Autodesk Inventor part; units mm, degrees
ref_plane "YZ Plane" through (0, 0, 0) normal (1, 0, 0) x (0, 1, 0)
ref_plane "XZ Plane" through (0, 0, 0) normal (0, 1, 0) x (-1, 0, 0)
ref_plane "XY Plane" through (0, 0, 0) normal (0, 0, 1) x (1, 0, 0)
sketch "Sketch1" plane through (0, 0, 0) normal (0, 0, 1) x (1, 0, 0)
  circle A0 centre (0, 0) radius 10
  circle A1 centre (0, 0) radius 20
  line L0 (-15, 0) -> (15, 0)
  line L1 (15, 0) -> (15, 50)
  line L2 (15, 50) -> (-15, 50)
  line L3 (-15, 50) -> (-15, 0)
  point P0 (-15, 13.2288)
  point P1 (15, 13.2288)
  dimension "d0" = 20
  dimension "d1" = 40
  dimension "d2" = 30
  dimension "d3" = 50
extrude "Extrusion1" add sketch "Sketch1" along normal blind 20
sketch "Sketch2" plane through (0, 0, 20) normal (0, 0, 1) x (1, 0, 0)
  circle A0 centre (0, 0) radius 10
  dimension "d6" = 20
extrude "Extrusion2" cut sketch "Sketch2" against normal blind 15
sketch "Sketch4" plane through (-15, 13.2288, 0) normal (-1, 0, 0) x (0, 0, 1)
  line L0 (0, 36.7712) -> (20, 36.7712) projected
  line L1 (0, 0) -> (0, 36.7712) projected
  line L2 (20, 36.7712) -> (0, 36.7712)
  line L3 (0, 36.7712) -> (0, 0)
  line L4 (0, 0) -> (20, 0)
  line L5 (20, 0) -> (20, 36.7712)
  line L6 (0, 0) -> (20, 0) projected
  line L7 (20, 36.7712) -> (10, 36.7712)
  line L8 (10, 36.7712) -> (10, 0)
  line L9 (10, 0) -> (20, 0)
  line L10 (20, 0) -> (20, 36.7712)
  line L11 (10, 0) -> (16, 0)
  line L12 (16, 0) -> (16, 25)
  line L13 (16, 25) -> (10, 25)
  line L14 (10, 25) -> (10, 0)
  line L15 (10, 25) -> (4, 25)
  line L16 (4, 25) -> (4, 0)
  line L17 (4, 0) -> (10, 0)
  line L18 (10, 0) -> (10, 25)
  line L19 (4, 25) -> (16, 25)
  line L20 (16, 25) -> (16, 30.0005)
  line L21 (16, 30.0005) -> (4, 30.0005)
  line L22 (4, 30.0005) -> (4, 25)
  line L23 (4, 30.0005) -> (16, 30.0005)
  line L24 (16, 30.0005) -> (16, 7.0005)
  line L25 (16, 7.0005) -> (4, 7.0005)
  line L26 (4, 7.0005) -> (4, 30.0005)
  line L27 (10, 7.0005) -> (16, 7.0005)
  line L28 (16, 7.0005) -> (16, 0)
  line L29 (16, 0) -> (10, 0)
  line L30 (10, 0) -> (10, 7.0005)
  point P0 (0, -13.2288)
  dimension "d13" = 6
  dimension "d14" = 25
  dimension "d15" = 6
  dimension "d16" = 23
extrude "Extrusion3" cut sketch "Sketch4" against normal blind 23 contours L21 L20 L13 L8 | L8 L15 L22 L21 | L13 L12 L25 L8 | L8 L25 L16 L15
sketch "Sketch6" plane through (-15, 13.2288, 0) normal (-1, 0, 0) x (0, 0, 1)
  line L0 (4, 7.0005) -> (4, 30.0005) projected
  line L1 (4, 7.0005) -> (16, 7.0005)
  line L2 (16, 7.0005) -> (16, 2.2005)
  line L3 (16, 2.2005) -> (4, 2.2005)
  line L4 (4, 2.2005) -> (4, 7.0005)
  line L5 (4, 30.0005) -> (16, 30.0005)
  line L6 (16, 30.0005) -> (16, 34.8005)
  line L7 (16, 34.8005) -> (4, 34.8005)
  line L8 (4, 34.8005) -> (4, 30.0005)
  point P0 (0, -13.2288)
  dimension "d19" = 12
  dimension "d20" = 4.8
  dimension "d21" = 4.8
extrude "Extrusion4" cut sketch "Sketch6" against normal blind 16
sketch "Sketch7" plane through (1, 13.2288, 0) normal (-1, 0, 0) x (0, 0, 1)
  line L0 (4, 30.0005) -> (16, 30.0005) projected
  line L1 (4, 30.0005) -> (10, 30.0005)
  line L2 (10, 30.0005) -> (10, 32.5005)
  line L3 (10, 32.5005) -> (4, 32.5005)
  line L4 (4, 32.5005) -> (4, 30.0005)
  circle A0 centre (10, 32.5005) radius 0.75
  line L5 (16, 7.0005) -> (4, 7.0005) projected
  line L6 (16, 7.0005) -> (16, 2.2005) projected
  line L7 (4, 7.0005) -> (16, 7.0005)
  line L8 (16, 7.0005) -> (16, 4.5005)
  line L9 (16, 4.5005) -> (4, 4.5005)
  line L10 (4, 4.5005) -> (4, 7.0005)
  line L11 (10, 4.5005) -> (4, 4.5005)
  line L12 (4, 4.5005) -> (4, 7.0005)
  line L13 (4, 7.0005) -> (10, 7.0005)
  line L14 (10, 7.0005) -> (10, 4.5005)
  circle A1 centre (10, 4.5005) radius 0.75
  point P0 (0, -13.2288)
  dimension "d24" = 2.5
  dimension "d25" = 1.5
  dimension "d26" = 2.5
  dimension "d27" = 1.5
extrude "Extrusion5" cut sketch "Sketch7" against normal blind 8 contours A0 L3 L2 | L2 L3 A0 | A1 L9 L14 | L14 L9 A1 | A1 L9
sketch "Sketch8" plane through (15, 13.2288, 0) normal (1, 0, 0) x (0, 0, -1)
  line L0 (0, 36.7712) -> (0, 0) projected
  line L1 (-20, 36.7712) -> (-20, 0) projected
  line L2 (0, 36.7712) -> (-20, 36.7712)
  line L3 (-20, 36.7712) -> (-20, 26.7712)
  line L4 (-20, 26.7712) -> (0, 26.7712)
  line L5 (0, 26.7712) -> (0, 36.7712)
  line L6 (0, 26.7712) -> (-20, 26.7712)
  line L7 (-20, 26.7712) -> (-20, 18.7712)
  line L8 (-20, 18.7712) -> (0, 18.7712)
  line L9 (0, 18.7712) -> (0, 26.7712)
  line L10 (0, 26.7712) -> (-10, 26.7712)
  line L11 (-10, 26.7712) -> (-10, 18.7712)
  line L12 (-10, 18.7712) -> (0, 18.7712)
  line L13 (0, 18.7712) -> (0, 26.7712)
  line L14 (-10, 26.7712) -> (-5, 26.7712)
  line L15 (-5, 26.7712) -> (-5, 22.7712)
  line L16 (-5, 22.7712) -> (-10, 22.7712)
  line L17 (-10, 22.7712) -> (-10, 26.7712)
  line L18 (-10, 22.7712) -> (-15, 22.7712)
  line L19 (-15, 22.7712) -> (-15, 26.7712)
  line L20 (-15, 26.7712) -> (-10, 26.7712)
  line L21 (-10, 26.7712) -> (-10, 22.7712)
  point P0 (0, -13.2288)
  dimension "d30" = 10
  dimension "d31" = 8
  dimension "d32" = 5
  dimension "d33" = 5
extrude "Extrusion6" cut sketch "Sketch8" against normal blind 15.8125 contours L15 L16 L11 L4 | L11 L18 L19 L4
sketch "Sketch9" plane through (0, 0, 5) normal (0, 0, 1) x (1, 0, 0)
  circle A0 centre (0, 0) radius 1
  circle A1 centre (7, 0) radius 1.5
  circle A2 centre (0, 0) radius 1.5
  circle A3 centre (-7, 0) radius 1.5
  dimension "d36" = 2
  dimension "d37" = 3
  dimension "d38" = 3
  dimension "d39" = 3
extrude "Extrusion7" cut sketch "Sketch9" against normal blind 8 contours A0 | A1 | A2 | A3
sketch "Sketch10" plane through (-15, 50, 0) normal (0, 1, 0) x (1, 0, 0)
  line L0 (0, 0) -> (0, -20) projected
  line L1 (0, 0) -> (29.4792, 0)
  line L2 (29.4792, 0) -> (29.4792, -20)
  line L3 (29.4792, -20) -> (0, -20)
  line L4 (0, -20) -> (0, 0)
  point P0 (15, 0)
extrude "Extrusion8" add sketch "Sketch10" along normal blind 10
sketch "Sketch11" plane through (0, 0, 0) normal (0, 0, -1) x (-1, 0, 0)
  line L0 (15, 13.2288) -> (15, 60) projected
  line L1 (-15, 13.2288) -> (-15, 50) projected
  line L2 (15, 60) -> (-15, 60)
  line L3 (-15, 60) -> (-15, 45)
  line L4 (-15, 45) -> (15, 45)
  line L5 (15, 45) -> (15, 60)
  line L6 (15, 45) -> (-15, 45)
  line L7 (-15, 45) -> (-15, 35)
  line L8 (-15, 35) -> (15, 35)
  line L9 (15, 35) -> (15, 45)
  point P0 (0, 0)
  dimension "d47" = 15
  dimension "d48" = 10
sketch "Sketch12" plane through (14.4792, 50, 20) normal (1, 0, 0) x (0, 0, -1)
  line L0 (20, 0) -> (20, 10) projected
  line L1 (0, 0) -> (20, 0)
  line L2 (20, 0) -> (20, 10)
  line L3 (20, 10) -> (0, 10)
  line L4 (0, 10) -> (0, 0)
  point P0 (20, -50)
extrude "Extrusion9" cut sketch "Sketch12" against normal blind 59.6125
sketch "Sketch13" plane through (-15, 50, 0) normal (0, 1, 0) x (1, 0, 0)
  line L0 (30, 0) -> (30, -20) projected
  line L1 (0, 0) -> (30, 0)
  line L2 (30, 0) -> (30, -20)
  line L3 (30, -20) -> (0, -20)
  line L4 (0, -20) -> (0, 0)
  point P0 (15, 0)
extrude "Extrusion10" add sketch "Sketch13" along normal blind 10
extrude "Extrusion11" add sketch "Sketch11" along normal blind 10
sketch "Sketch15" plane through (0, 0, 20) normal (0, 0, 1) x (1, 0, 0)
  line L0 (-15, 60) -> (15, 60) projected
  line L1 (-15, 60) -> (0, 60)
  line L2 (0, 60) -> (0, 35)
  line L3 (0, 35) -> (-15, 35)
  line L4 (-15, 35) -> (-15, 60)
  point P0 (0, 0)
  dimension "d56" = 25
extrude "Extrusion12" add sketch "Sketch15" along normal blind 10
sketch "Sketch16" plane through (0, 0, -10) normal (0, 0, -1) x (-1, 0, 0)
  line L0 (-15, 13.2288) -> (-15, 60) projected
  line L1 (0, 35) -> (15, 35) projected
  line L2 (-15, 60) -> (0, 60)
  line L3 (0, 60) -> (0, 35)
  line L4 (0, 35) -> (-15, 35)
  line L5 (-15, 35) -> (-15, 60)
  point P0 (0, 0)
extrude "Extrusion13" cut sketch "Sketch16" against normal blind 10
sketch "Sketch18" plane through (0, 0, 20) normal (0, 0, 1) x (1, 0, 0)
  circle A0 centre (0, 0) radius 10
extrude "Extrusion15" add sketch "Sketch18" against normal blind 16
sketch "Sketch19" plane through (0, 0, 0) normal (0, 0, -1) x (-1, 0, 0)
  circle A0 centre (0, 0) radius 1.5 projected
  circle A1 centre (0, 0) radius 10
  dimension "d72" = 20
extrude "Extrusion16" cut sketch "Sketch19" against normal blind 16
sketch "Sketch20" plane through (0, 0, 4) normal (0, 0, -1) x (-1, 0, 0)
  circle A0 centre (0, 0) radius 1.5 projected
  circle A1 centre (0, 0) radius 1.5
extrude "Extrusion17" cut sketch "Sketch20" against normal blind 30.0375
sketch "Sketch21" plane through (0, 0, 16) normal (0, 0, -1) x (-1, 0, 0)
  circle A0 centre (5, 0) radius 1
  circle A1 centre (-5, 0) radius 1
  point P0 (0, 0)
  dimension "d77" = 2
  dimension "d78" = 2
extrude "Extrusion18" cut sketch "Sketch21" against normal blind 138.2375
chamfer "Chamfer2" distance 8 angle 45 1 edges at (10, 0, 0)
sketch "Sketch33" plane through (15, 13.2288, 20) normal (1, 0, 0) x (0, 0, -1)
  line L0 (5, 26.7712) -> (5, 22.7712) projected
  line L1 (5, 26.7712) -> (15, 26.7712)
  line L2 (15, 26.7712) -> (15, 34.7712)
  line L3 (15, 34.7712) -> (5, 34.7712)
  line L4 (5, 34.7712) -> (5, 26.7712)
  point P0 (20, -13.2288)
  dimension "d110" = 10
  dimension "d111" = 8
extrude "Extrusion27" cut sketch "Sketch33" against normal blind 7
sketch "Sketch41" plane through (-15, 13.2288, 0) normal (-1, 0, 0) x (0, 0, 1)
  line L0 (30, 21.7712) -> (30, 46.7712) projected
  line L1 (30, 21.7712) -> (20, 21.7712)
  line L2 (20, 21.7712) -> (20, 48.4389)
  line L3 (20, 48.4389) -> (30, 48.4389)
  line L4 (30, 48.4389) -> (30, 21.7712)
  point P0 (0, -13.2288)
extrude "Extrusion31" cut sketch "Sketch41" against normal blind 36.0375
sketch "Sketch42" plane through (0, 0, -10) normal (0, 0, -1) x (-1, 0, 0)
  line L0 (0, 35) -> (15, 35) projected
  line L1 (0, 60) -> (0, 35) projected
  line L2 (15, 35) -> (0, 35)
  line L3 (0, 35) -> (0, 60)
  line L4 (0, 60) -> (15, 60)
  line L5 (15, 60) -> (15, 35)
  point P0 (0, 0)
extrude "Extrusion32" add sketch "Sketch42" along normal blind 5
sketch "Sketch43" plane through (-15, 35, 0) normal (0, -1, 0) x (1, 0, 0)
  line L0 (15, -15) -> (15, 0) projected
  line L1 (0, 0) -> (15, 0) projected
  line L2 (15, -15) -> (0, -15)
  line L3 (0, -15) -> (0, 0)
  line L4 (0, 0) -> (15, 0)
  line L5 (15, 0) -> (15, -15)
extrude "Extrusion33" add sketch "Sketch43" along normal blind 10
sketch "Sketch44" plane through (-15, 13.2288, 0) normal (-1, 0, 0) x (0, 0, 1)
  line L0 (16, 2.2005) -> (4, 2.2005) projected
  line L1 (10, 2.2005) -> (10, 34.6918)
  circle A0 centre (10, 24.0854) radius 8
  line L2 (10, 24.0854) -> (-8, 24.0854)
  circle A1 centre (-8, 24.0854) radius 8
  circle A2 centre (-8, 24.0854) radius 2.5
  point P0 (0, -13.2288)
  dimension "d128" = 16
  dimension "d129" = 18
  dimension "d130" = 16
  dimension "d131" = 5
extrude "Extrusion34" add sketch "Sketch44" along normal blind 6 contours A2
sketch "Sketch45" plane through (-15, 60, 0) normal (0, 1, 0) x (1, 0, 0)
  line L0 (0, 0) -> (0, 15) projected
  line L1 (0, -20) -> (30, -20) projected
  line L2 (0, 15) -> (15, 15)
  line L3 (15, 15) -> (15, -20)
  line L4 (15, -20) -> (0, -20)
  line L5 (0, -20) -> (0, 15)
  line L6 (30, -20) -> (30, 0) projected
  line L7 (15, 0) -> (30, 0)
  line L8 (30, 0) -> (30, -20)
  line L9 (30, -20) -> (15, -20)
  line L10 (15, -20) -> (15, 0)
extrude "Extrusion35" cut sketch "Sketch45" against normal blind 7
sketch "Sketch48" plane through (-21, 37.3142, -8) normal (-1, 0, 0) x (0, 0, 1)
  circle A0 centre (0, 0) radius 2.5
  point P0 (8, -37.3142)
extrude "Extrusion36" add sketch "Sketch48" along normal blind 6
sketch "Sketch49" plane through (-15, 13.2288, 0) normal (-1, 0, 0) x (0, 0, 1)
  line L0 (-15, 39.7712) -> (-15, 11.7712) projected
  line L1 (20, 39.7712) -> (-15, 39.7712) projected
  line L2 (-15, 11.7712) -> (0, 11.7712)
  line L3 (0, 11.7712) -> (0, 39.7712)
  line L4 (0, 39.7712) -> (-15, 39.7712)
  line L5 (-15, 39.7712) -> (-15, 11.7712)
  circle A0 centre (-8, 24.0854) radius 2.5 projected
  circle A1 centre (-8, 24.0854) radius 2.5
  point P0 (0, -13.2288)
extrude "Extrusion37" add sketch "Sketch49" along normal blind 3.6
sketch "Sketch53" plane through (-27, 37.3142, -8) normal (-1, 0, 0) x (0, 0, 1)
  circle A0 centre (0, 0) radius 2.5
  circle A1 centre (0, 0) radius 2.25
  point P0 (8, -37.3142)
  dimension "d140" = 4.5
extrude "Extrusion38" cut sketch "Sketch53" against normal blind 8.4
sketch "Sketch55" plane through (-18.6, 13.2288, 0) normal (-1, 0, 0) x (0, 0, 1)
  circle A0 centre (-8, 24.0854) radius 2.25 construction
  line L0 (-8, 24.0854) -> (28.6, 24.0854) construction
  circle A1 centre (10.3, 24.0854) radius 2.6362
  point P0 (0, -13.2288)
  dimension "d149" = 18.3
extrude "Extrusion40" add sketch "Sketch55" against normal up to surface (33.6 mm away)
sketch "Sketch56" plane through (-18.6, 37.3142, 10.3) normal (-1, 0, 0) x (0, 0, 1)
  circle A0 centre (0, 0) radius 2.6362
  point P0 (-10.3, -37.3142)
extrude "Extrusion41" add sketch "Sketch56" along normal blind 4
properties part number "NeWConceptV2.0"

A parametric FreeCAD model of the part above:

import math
import FreeCAD as App
import Part
import Sketcher
from FreeCAD import Vector


def edges_at(feature, points):
    """Names of the edges that pass closest to the given points."""
    edges = feature.Shape.Edges
    near = lambda p: min(range(len(edges)), key=lambda i: edges[i].distToShape(Part.Vertex(*p))[0])
    return sorted({f"Edge{near(p) + 1}" for p in points})


def add_polygon(sketch, points):
    """Adds a closed chain of lines whose ends are joined by coincident constraints."""
    first, n = sketch.GeometryCount, len(points)
    for a, b in zip(points, points[1:] + points[:1]):
        sketch.addGeometry(Part.LineSegment(App.Vector(*a, 0), App.Vector(*b, 0)), False)
    for i in range(n):
        sketch.addConstraint(Sketcher.Constraint("Coincident", first + i, 2, first + (i + 1) % n, 1))

doc = App.newDocument("Part")
params = doc.addObject("Spreadsheet::Sheet", "Params")
for row, (alias, value) in enumerate([
    ("sketch1_radius", "20 mm"),
    ("sketch1_width", "30 mm"),
    ("pad1_length", "20 mm"),
    ("sketch2_diameter", "20 mm"),
    ("pocket1_length", "15 mm"),
    ("sketch3_width", "23 mm"),
    ("sketch3_height", "12 mm"),
    ("pocket2_length", "23 mm"),
    ("sketch4_height", "12 mm"),
    ("sketch4_width", "4.8 mm"),
    ("pocket3_length", "16 mm"),
    ("sketch5_diameter", "1.5 mm"),
    ("pocket4_length", "8 mm"),
    ("sketch6_height", "10 mm"),
    ("sketch6_width", "4 mm"),
    ("pocket5_length", "15.8125 mm"),
    ("sketch7_diameter", "3 mm"),
    ("pocket6_length", "8 mm"),
    ("sketch8_height", "20 mm"),
    ("pad2_length", "10 mm"),
    ("sketch9_width", "10 mm"),
    ("sketch9_height", "20 mm"),
    ("pocket7_length", "59.6125 mm"),
    ("sketch10_width", "30 mm"),
    ("sketch10_height", "20 mm"),
    ("pad3_length", "10 mm"),
    ("sketch11_height", "25 mm"),
    ("pad4_length", "10 mm"),
    ("sketch12_height", "25 mm"),
    ("sketch12_width", "15 mm"),
    ("pad5_length", "10 mm"),
    ("sketch13_width", "15 mm"),
    ("sketch13_height", "25 mm"),
    ("pocket8_length", "10 mm"),
    ("sketch14_diameter", "20 mm"),
    ("pad6_length", "16 mm"),
    ("sketch15_diameter", "20 mm"),
    ("sketch15_diameter2", "3 mm"),
    ("pocket9_length", "16 mm"),
    ("sketch16_diameter", "3 mm"),
    ("pocket10_length", "30.0375 mm"),
    ("sketch17_diameter", "2 mm"),
    ("pocket11_length", "138.2375 mm"),
    ("chamfer_size", "8 mm"),
    ("sketch18_width", "8 mm"),
    ("sketch18_height", "10 mm"),
    ("pocket12_length", "7 mm"),
    ("sketch19_height", "10 mm"),
    ("pocket13_length", "36.0375 mm"),
    ("sketch20_width", "15 mm"),
    ("sketch20_height", "25 mm"),
    ("pad7_length", "5 mm"),
    ("sketch21_width", "15 mm"),
    ("pad8_length", "10 mm"),
    ("sketch22_diameter", "5 mm"),
    ("pad9_length", "6 mm"),
    ("sketch23_width", "30 mm"),
    ("sketch23_height", "35 mm"),
    ("pocket14_length", "7 mm"),
    ("sketch24_diameter", "5 mm"),
    ("pad10_length", "6 mm"),
    ("sketch25_diameter", "5 mm"),
    ("sketch25_width", "28 mm"),
    ("sketch25_height", "15 mm"),
    ("pad11_length", "3.6 mm"),
    ("sketch26_diameter", "4.5 mm"),
    ("sketch26_diameter2", "5 mm"),
    ("pocket15_length", "8.4 mm"),
    ("pad12_length", "33.6 mm"),
    ("pad13_length", "4 mm"),
], start=1):
    params.set(f"A{row}", alias)
    params.set(f"B{row}", "=" + value)
    params.setAlias(f"B{row}", alias)

body = doc.addObject("PartDesign::Body", "Body")

sketch1 = body.newObject("Sketcher::SketchObject", "Sketch")
sketch1.AttachmentSupport = (doc.getObject("XY_Plane"), [""])
sketch1.MapMode = "FlatFace"
sketch1.addGeometry([
    Part.ArcOfCircle(Part.Circle(Vector(0, 0, 0), Vector(0, 0, 1), 20), math.radians(139), math.radians(401)),
    Part.LineSegment(Vector(15, 13, 0), Vector(15, 50, 0)),
    Part.LineSegment(Vector(15, 50, 0), Vector(-15, 50, 0)),
    Part.LineSegment(Vector(-15, 50, 0), Vector(-15, 13, 0)),
], False)
sketch1.addConstraint([
    Sketcher.Constraint("Coincident", 0, 2, 1, 1),
    Sketcher.Constraint("Coincident", 1, 2, 2, 1),
    Sketcher.Constraint("Coincident", 2, 2, 3, 1),
    Sketcher.Constraint("Coincident", 3, 2, 0, 1),
    Sketcher.Constraint("Vertical", 1),
    Sketcher.Constraint("Horizontal", 2),
    Sketcher.Constraint("Vertical", 3),
    Sketcher.Constraint("Coincident", 0, 3, -1, 1),
    Sketcher.Constraint("Horizontal", 0, 2, 3, 2),
    Sketcher.Constraint("Radius", 0, 20.0),
    Sketcher.Constraint("DistanceX", 2, 2, 2, 1, 30.0),
    Sketcher.Constraint("DistanceY", -1, 1, 1, 2, 50.0),
])
sketch1.setExpression("Constraints[9]", "Params.sketch1_radius")
sketch1.setExpression("Constraints[10]", "Params.sketch1_width")
pad1 = body.newObject("PartDesign::Pad", "Pad")
pad1.Profile = sketch1
pad1.setExpression("Length", "Params.pad1_length")

sketch2 = body.newObject("Sketcher::SketchObject", "Sketch001")
sketch2.AttachmentSupport = (doc.getObject("XY_Plane"), [""])
sketch2.MapMode = "FlatFace"
sketch2.AttachmentOffset = App.Placement(Vector(0, 0, 20), App.Rotation())
sketch2.addGeometry(Part.Circle(Vector(0, 0, 0), Vector(0, 0, 1), 10), False)
sketch2.addConstraint([
    Sketcher.Constraint("Coincident", 0, 3, -1, 1),
    Sketcher.Constraint("Diameter", 0, 20.0),
])
sketch2.setExpression("Constraints[1]", "Params.sketch2_diameter")
pocket1 = body.newObject("PartDesign::Pocket", "Pocket")
pocket1.Profile = sketch2
pocket1.setExpression("Length", "Params.pocket1_length")

sketch3 = body.newObject("Sketcher::SketchObject", "Sketch002")
sketch3.AttachmentSupport = (doc.getObject("YZ_Plane"), [""])
sketch3.MapMode = "FlatFace"
sketch3.AttachmentOffset = App.Placement(Vector(0, 0, -15), App.Rotation())
add_polygon(sketch3, [(43, 16), (43, 4), (20, 4), (20, 16)])
sketch3.addConstraint([
    Sketcher.Constraint("Vertical", 0),
    Sketcher.Constraint("Horizontal", 1),
    Sketcher.Constraint("Vertical", 2),
    Sketcher.Constraint("Horizontal", 3),
    Sketcher.Constraint("DistanceX", 1, 2, 1, 1, 23.0),
    Sketcher.Constraint("DistanceY", 0, 2, 0, 1, 12.0),
    Sketcher.Constraint("DistanceY", -1, 1, 0, 2, 4.0),
    Sketcher.Constraint("DistanceX", -1, 1, 0, 2, 43.2293),
])
sketch3.setExpression("Constraints[8]", "Params.sketch3_width")
sketch3.setExpression("Constraints[9]", "Params.sketch3_height")
pocket2 = body.newObject("PartDesign::Pocket", "Pocket001")
pocket2.Profile = sketch3
pocket2.setExpression("Length", "Params.pocket2_length")
pocket2.Reversed = True

sketch4 = body.newObject("Sketcher::SketchObject", "Sketch003")
sketch4.AttachmentSupport = (doc.getObject("YZ_Plane"), [""])
sketch4.MapMode = "FlatFace"
sketch4.AttachmentOffset = App.Placement(Vector(0, 0, -15), App.Rotation())
add_polygon(sketch4, [(48, 4), (43.2, 4), (43.2, 16), (48, 16)])
add_polygon(sketch4, [(20.2, 16), (20.2, 4), (15.4, 4), (15.4, 16)])
sketch4.addConstraint([
    Sketcher.Constraint("Horizontal", 0),
    Sketcher.Constraint("Vertical", 1),
    Sketcher.Constraint("Horizontal", 2),
    Sketcher.Constraint("Vertical", 3),
    Sketcher.Constraint("Vertical", 4),
    Sketcher.Constraint("Horizontal", 5),
    Sketcher.Constraint("Vertical", 6),
    Sketcher.Constraint("Horizontal", 7),
    Sketcher.Constraint("Horizontal", 3, 2, 4, 2),
    Sketcher.Constraint("Horizontal", 2, 2, 6, 2),
    Sketcher.Constraint("Equal", 2, 5),
    Sketcher.Constraint("DistanceY", 1, 1, 1, 2, 12.0),
    Sketcher.Constraint("DistanceX", 0, 2, 0, 1, 4.8),
    Sketcher.Constraint("DistanceY", -1, 1, 0, 2, 4.0),
    Sketcher.Constraint("DistanceX", 4, 2, 0, 2, 23.0),
    Sketcher.Constraint("DistanceX", -1, 1, 0, 2, 43.2293),
])
sketch4.setExpression("Constraints[19]", "Params.sketch4_height")
sketch4.setExpression("Constraints[20]", "Params.sketch4_width")
pocket3 = body.newObject("PartDesign::Pocket", "Pocket002")
pocket3.Profile = sketch4
pocket3.setExpression("Length", "Params.pocket3_length")
pocket3.Reversed = True

sketch5 = body.newObject("Sketcher::SketchObject", "Sketch004")
sketch5.AttachmentSupport = (doc.getObject("YZ_Plane"), [""])
sketch5.MapMode = "FlatFace"
sketch5.AttachmentOffset = App.Placement(Vector(0, 0, 1), App.Rotation())
sketch5.addGeometry([
    Part.Circle(Vector(45.7, 10, 0), Vector(0, 0, 1), 0.8),
    Part.Circle(Vector(17.7, 10, 0), Vector(0, 0, 1), 0.8),
], False)
sketch5.addConstraint([
    Sketcher.Constraint("Equal", 0, 1),
    Sketcher.Constraint("Horizontal", 0, 3, 1, 3),
    Sketcher.Constraint("Diameter", 0, 1.5),
    Sketcher.Constraint("DistanceY", -1, 1, 0, 3, 10.0),
    Sketcher.Constraint("DistanceX", 1, 3, 0, 3, 28.0),
    Sketcher.Constraint("DistanceX", -1, 1, 0, 3, 45.7293),
])
sketch5.setExpression("Constraints[2]", "Params.sketch5_diameter")
pocket4 = body.newObject("PartDesign::Pocket", "Pocket003")
pocket4.Profile = sketch5
pocket4.setExpression("Length", "Params.pocket4_length")
pocket4.Reversed = True

sketch6 = body.newObject("Sketcher::SketchObject", "Sketch005")
sketch6.AttachmentSupport = (doc.getObject("YZ_Plane"), [""])
sketch6.MapMode = "FlatFace"
sketch6.AttachmentOffset = App.Placement(Vector(0, 0, 15), App.Rotation())
add_polygon(sketch6, [(36, 5), (40, 5), (40, 15), (36, 15)])
sketch6.addConstraint([
    Sketcher.Constraint("Horizontal", 0),
    Sketcher.Constraint("Vertical", 1),
    Sketcher.Constraint("Horizontal", 2),
    Sketcher.Constraint("Vertical", 3),
    Sketcher.Constraint("DistanceY", 1, 1, 1, 2, 10.0),
    Sketcher.Constraint("DistanceY", -1, 1, 0, 2, 5.0),
    Sketcher.Constraint("DistanceX", 0, 1, 0, 2, 4.0),
    Sketcher.Constraint("DistanceX", -1, 1, 0, 2, 40.0),
])
sketch6.setExpression("Constraints[8]", "Params.sketch6_height")
sketch6.setExpression("Constraints[10]", "Params.sketch6_width")
pocket5 = body.newObject("PartDesign::Pocket", "Pocket004")
pocket5.Profile = sketch6
pocket5.setExpression("Length", "Params.pocket5_length")

sketch7 = body.newObject("Sketcher::SketchObject", "Sketch006")
sketch7.AttachmentSupport = (doc.getObject("XY_Plane"), [""])
sketch7.MapMode = "FlatFace"
sketch7.AttachmentOffset = App.Placement(Vector(0, 0, 5), App.Rotation())
sketch7.addGeometry([
    Part.Circle(Vector(0, 0, 0), Vector(0, 0, 1), 1.5),
    Part.Circle(Vector(7, 0, 0), Vector(0, 0, 1), 1.5),
    Part.Circle(Vector(-7, 0, 0), Vector(0, 0, 1), 1.5),
], False)
sketch7.addConstraint([
    Sketcher.Constraint("Coincident", 0, 3, -1, 1),
    Sketcher.Constraint("Equal", 0, 1),
    Sketcher.Constraint("Equal", 1, 2),
    Sketcher.Constraint("Symmetric", 1, 3, 2, 3, -1, 1),
    Sketcher.Constraint("PointOnObject", 1, 3, -1),
    Sketcher.Constraint("Diameter", 0, 3.0),
    Sketcher.Constraint("DistanceX", -1, 1, 1, 3, 7.0),
])
sketch7.setExpression("Constraints[5]", "Params.sketch7_diameter")
pocket6 = body.newObject("PartDesign::Pocket", "Pocket005")
pocket6.Profile = sketch7
pocket6.setExpression("Length", "Params.pocket6_length")

sketch8 = body.newObject("Sketcher::SketchObject", "Sketch007")
sketch8.AttachmentSupport = (doc.getObject("XZ_Plane"), [""])
sketch8.MapMode = "FlatFace"
sketch8.AttachmentOffset = App.Placement(Vector(0, 0, -50), App.Rotation())
add_polygon(sketch8, [(14, 0), (-15, 0), (-15, 20), (14, 20)])
sketch8.addConstraint([
    Sketcher.Constraint("Horizontal", 0),
    Sketcher.Constraint("Vertical", 1),
    Sketcher.Constraint("Horizontal", 2),
    Sketcher.Constraint("Vertical", 3),
    Sketcher.Constraint("PointOnObject", 0, 2, -1),
    Sketcher.Constraint("DistanceY", 1, 1, 1, 2, 20.0),
    Sketcher.Constraint("DistanceX", 0, 2, -1, 1, 15.0),
    Sketcher.Constraint("DistanceX", 0, 2, 0, 1, 29.4792),
])
sketch8.setExpression("Constraints[9]", "Params.sketch8_height")
pad2 = body.newObject("PartDesign::Pad", "Pad001")
pad2.Profile = sketch8
pad2.setExpression("Length", "Params.pad2_length")
pad2.Reversed = True

sketch9 = body.newObject("Sketcher::SketchObject", "Sketch008")
sketch9.AttachmentSupport = (doc.getObject("YZ_Plane"), [""])
sketch9.MapMode = "FlatFace"
sketch9.AttachmentOffset = App.Placement(Vector(0, 0, 14.4792), App.Rotation())
add_polygon(sketch9, [(50, 20), (50, 0), (60, 0), (60, 20)])
sketch9.addConstraint([
    Sketcher.Constraint("Vertical", 0),
    Sketcher.Constraint("Horizontal", 1),
    Sketcher.Constraint("Vertical", 2),
    Sketcher.Constraint("Horizontal", 3),
    Sketcher.Constraint("PointOnObject", 0, 2, -1),
    Sketcher.Constraint("DistanceX", 1, 1, 1, 2, 10.0),
    Sketcher.Constraint("DistanceY", 0, 2, 0, 1, 20.0),
    Sketcher.Constraint("DistanceX", -1, 1, 0, 2, 50.0),
])
sketch9.setExpression("Constraints[9]", "Params.sketch9_width")
sketch9.setExpression("Constraints[10]", "Params.sketch9_height")
pocket7 = body.newObject("PartDesign::Pocket", "Pocket006")
pocket7.Profile = sketch9
pocket7.setExpression("Length", "Params.pocket7_length")

sketch10 = body.newObject("Sketcher::SketchObject", "Sketch009")
sketch10.AttachmentSupport = (doc.getObject("XZ_Plane"), [""])
sketch10.MapMode = "FlatFace"
sketch10.AttachmentOffset = App.Placement(Vector(0, 0, -50), App.Rotation())
add_polygon(sketch10, [(15, 20), (15, 0), (-15, 0), (-15, 20)])
sketch10.addConstraint([
    Sketcher.Constraint("Vertical", 0),
    Sketcher.Constraint("Horizontal", 1),
    Sketcher.Constraint("Vertical", 2),
    Sketcher.Constraint("Horizontal", 3),
    Sketcher.Constraint("Symmetric", 0, 2, 1, 2, -1, 1),
    Sketcher.Constraint("DistanceX", 1, 2, 1, 1, 30.0),
    Sketcher.Constraint("DistanceY", 0, 2, 0, 1, 20.0),
])
sketch10.setExpression("Constraints[9]", "Params.sketch10_width")
sketch10.setExpression("Constraints[10]", "Params.sketch10_height")
pad3 = body.newObject("PartDesign::Pad", "Pad002")
pad3.Profile = sketch10
pad3.setExpression("Length", "Params.pad3_length")
pad3.Reversed = True

sketch11 = body.newObject("Sketcher::SketchObject", "Sketch010")
sketch11.AttachmentSupport = (doc.getObject("XY_Plane"), [""])
sketch11.MapMode = "FlatFace"
add_polygon(sketch11, [(15, 35), (-15, 35), (-15, 60), (15, 60)])
sketch11.addConstraint([
    Sketcher.Constraint("Horizontal", 0),
    Sketcher.Constraint("Vertical", 1),
    Sketcher.Constraint("Horizontal", 2),
    Sketcher.Constraint("Vertical", 3),
    Sketcher.Constraint("DistanceX", 0, 2, -1, 1, 15.0),
    Sketcher.Constraint("DistanceX", -1, 1, 2, 2, 15.0),
    Sketcher.Constraint("DistanceY", 1, 1, 1, 2, 25.0),
    Sketcher.Constraint("DistanceY", -1, 1, 0, 2, 35.0),
])
sketch11.setExpression("Constraints[10]", "Params.sketch11_height")
pad4 = body.newObject("PartDesign::Pad", "Pad003")
pad4.Profile = sketch11
pad4.setExpression("Length", "Params.pad4_length")
pad4.Reversed = True

sketch12 = body.newObject("Sketcher::SketchObject", "Sketch011")
sketch12.AttachmentSupport = (doc.getObject("XY_Plane"), [""])
sketch12.MapMode = "FlatFace"
sketch12.AttachmentOffset = App.Placement(Vector(0, 0, 20), App.Rotation())
add_polygon(sketch12, [(0, 60), (-15, 60), (-15, 35), (0, 35)])
sketch12.addConstraint([
    Sketcher.Constraint("Horizontal", 0),
    Sketcher.Constraint("Vertical", 1),
    Sketcher.Constraint("Horizontal", 2),
    Sketcher.Constraint("Vertical", 3),
    Sketcher.Constraint("PointOnObject", 2, 2, -2),
    Sketcher.Constraint("DistanceY", 1, 2, 1, 1, 25.0),
    Sketcher.Constraint("DistanceX", 0, 2, 0, 1, 15.0),
    Sketcher.Constraint("DistanceY", -1, 1, 0, 2, 60.0),
])
sketch12.setExpression("Constraints[9]", "Params.sketch12_height")
sketch12.setExpression("Constraints[10]", "Params.sketch12_width")
pad5 = body.newObject("PartDesign::Pad", "Pad004")
pad5.Profile = sketch12
pad5.setExpression("Length", "Params.pad5_length")

sketch13 = body.newObject("Sketcher::SketchObject", "Sketch012")
sketch13.AttachmentSupport = (doc.getObject("XY_Plane"), [""])
sketch13.MapMode = "FlatFace"
sketch13.AttachmentOffset = App.Placement(Vector(0, 0, -10), App.Rotation())
add_polygon(sketch13, [(15, 60), (15, 35), (0, 35), (0, 60)])
sketch13.addConstraint([
    Sketcher.Constraint("Vertical", 0),
    Sketcher.Constraint("Horizontal", 1),
    Sketcher.Constraint("Vertical", 2),
    Sketcher.Constraint("Horizontal", 3),
    Sketcher.Constraint("PointOnObject", 1, 2, -2),
    Sketcher.Constraint("DistanceX", 1, 2, 1, 1, 15.0),
    Sketcher.Constraint("DistanceY", 0, 2, 0, 1, 25.0),
    Sketcher.Constraint("DistanceY", -1, 1, 0, 2, 35.0),
])
sketch13.setExpression("Constraints[9]", "Params.sketch13_width")
sketch13.setExpression("Constraints[10]", "Params.sketch13_height")
pocket8 = body.newObject("PartDesign::Pocket", "Pocket007")
pocket8.Profile = sketch13
pocket8.setExpression("Length", "Params.pocket8_length")
pocket8.Reversed = True

sketch14 = body.newObject("Sketcher::SketchObject", "Sketch013")
sketch14.AttachmentSupport = (doc.getObject("XY_Plane"), [""])
sketch14.MapMode = "FlatFace"
sketch14.AttachmentOffset = App.Placement(Vector(0, 0, 20), App.Rotation())
sketch14.addGeometry(Part.Circle(Vector(0, 0, 0), Vector(0, 0, 1), 10), False)
sketch14.addConstraint([
    Sketcher.Constraint("Coincident", 0, 3, -1, 1),
    Sketcher.Constraint("Diameter", 0, 20.0),
])
sketch14.setExpression("Constraints[1]", "Params.sketch14_diameter")
pad6 = body.newObject("PartDesign::Pad", "Pad005")
pad6.Profile = sketch14
pad6.setExpression("Length", "Params.pad6_length")
pad6.Reversed = True

sketch15 = body.newObject("Sketcher::SketchObject", "Sketch014")
sketch15.AttachmentSupport = (doc.getObject("XY_Plane"), [""])
sketch15.MapMode = "FlatFace"
sketch15.addGeometry([
    Part.Circle(Vector(0, 0, 0), Vector(0, 0, 1), 10),
    Part.Circle(Vector(0, 0, 0), Vector(0, 0, 1), 1.5),
], False)
sketch15.addConstraint([
    Sketcher.Constraint("Coincident", 0, 3, -1, 1),
    Sketcher.Constraint("Coincident", 1, 3, -1, 1),
    Sketcher.Constraint("Diameter", 0, 20.0),
    Sketcher.Constraint("Diameter", 1, 3.0),
])
sketch15.setExpression("Constraints[2]", "Params.sketch15_diameter")
sketch15.setExpression("Constraints[3]", "Params.sketch15_diameter2")
pocket9 = body.newObject("PartDesign::Pocket", "Pocket008")
pocket9.Profile = sketch15
pocket9.setExpression("Length", "Params.pocket9_length")
pocket9.Reversed = True

sketch16 = body.newObject("Sketcher::SketchObject", "Sketch015")
sketch16.AttachmentSupport = (doc.getObject("XY_Plane"), [""])
sketch16.MapMode = "FlatFace"
sketch16.AttachmentOffset = App.Placement(Vector(0, 0, 4), App.Rotation())
sketch16.addGeometry(Part.Circle(Vector(0, 0, 0), Vector(0, 0, 1), 1.5), False)
sketch16.addConstraint([
    Sketcher.Constraint("Coincident", 0, 3, -1, 1),
    Sketcher.Constraint("Diameter", 0, 3.0),
])
sketch16.setExpression("Constraints[1]", "Params.sketch16_diameter")
pocket10 = body.newObject("PartDesign::Pocket", "Pocket009")
pocket10.Profile = sketch16
pocket10.setExpression("Length", "Params.pocket10_length")
pocket10.Reversed = True

sketch17 = body.newObject("Sketcher::SketchObject", "Sketch016")
sketch17.AttachmentSupport = (doc.getObject("XY_Plane"), [""])
sketch17.MapMode = "FlatFace"
sketch17.AttachmentOffset = App.Placement(Vector(0, 0, 16), App.Rotation())
sketch17.addGeometry([
    Part.Circle(Vector(-5, 0, 0), Vector(0, 0, 1), 1),
    Part.Circle(Vector(5, 0, 0), Vector(0, 0, 1), 1),
], False)
sketch17.addConstraint([
    Sketcher.Constraint("Equal", 0, 1),
    Sketcher.Constraint("Symmetric", 0, 3, 1, 3, -1, 1),
    Sketcher.Constraint("PointOnObject", 0, 3, -1),
    Sketcher.Constraint("Diameter", 0, 2.0),
    Sketcher.Constraint("DistanceX", 0, 3, -1, 1, 5.0),
])
sketch17.setExpression("Constraints[3]", "Params.sketch17_diameter")
pocket11 = body.newObject("PartDesign::Pocket", "Pocket010")
pocket11.Profile = sketch17
pocket11.setExpression("Length", "Params.pocket11_length")
pocket11.Reversed = True
doc.recompute()

chamfer = body.newObject("PartDesign::Chamfer", "Chamfer")
chamfer.Base = (pocket11, edges_at(pocket11, [(10, 0, 0)]))
chamfer.setExpression("Size", "Params.chamfer_size")

sketch18 = body.newObject("Sketcher::SketchObject", "Sketch017")
sketch18.AttachmentSupport = (doc.getObject("YZ_Plane"), [""])
sketch18.MapMode = "FlatFace"
sketch18.AttachmentOffset = App.Placement(Vector(0, 0, 15), App.Rotation())
add_polygon(sketch18, [(48, 15), (40, 15), (40, 5), (48, 5)])
sketch18.addConstraint([
    Sketcher.Constraint("Horizontal", 0),
    Sketcher.Constraint("Vertical", 1),
    Sketcher.Constraint("Horizontal", 2),
    Sketcher.Constraint("Vertical", 3),
    Sketcher.Constraint("DistanceX", 0, 2, 0, 1, 8.0),
    Sketcher.Constraint("DistanceY", 1, 2, 1, 1, 10.0),
    Sketcher.Constraint("DistanceX", -1, 1, 0, 2, 40.0),
    Sketcher.Constraint("DistanceY", -1, 1, 0, 2, 15.0),
])
sketch18.setExpression("Constraints[8]", "Params.sketch18_width")
sketch18.setExpression("Constraints[9]", "Params.sketch18_height")
pocket12 = body.newObject("PartDesign::Pocket", "Pocket011")
pocket12.Profile = sketch18
pocket12.setExpression("Length", "Params.pocket12_length")

sketch19 = body.newObject("Sketcher::SketchObject", "Sketch018")
sketch19.AttachmentSupport = (doc.getObject("YZ_Plane"), [""])
sketch19.MapMode = "FlatFace"
sketch19.AttachmentOffset = App.Placement(Vector(0, 0, -15), App.Rotation())
add_polygon(sketch19, [(35, 20), (35, 30), (62, 30), (62, 20)])
sketch19.addConstraint([
    Sketcher.Constraint("Vertical", 0),
    Sketcher.Constraint("Horizontal", 1),
    Sketcher.Constraint("Vertical", 2),
    Sketcher.Constraint("Horizontal", 3),
    Sketcher.Constraint("DistanceY", 0, 1, 0, 2, 10.0),
    Sketcher.Constraint("DistanceX", -1, 1, 0, 2, 35.0),
    Sketcher.Constraint("DistanceY", -1, 1, 0, 2, 30.0),
    Sketcher.Constraint("DistanceX", 1, 1, 1, 2, 26.6677),
])
sketch19.setExpression("Constraints[8]", "Params.sketch19_height")
pocket13 = body.newObject("PartDesign::Pocket", "Pocket012")
pocket13.Profile = sketch19
pocket13.setExpression("Length", "Params.pocket13_length")
pocket13.Reversed = True

sketch20 = body.newObject("Sketcher::SketchObject", "Sketch019")
sketch20.AttachmentSupport = (doc.getObject("XY_Plane"), [""])
sketch20.MapMode = "FlatFace"
sketch20.AttachmentOffset = App.Placement(Vector(0, 0, -10), App.Rotation())
add_polygon(sketch20, [(0, 60), (0, 35), (-15, 35), (-15, 60)])
sketch20.addConstraint([
    Sketcher.Constraint("Vertical", 0),
    Sketcher.Constraint("Horizontal", 1),
    Sketcher.Constraint("Vertical", 2),
    Sketcher.Constraint("Horizontal", 3),
    Sketcher.Constraint("PointOnObject", 0, 2, -2),
    Sketcher.Constraint("DistanceX", 1, 2, 1, 1, 15.0),
    Sketcher.Constraint("DistanceY", 0, 2, 0, 1, 25.0),
    Sketcher.Constraint("DistanceY", -1, 1, 0, 2, 35.0),
])
sketch20.setExpression("Constraints[9]", "Params.sketch20_width")
sketch20.setExpression("Constraints[10]", "Params.sketch20_height")
pad7 = body.newObject("PartDesign::Pad", "Pad006")
pad7.Profile = sketch20
pad7.setExpression("Length", "Params.pad7_length")
pad7.Reversed = True

sketch21 = body.newObject("Sketcher::SketchObject", "Sketch020")
sketch21.AttachmentSupport = (doc.getObject("XZ_Plane"), [""])
sketch21.MapMode = "FlatFace"
sketch21.AttachmentOffset = App.Placement(Vector(0, 0, -35), App.Rotation())
add_polygon(sketch21, [(-15, -15), (0, -15), (0, 0), (-15, 0)])
sketch21.addConstraint([
    Sketcher.Constraint("Horizontal", 0),
    Sketcher.Constraint("Vertical", 1),
    Sketcher.Constraint("Horizontal", 2),
    Sketcher.Constraint("Vertical", 3),
    Sketcher.Constraint("Coincident", 1, 2, -1, 1),
    Sketcher.Constraint("Equal", 2, 1),
    Sketcher.Constraint("DistanceX", 0, 1, 0, 2, 15.0),
])
sketch21.setExpression("Constraints[10]", "Params.sketch21_width")
pad8 = body.newObject("PartDesign::Pad", "Pad007")
pad8.Profile = sketch21
pad8.setExpression("Length", "Params.pad8_length")

sketch22 = body.newObject("Sketcher::SketchObject", "Sketch021")
sketch22.AttachmentSupport = (doc.getObject("YZ_Plane"), [""])
sketch22.MapMode = "FlatFace"
sketch22.AttachmentOffset = App.Placement(Vector(0, 0, -15), App.Rotation())
sketch22.addGeometry(Part.Circle(Vector(37.3, -8, 0), Vector(0, 0, 1), 2.5), False)
sketch22.addConstraint([
    Sketcher.Constraint("Diameter", 0, 5.0),
    Sketcher.Constraint("DistanceY", 0, 3, -1, 1, 8.0),
    Sketcher.Constraint("DistanceX", -1, 1, 0, 3, 37.3142),
])
sketch22.setExpression("Constraints[0]", "Params.sketch22_diameter")
pad9 = body.newObject("PartDesign::Pad", "Pad008")
pad9.Profile = sketch22
pad9.setExpression("Length", "Params.pad9_length")
pad9.Reversed = True

sketch23 = body.newObject("Sketcher::SketchObject", "Sketch022")
sketch23.AttachmentSupport = (doc.getObject("XZ_Plane"), [""])
sketch23.MapMode = "FlatFace"
sketch23.AttachmentOffset = App.Placement(Vector(0, 0, -60), App.Rotation())
add_polygon(sketch23, [(-15, -15), (-15, 20), (15, 20), (15, 0), (0, 0), (0, -15)])
sketch23.addConstraint([
    Sketcher.Constraint("Vertical", 0),
    Sketcher.Constraint("Horizontal", 1),
    Sketcher.Constraint("Vertical", 2),
    Sketcher.Constraint("Horizontal", 3),
    Sketcher.Constraint("Vertical", 4),
    Sketcher.Constraint("Horizontal", 5),
    Sketcher.Constraint("Coincident", 3, 2, -1, 1),
    Sketcher.Constraint("Equal", 3, 5),
    Sketcher.Constraint("Equal", 5, 4),
    Sketcher.Constraint("DistanceX", 1, 1, 1, 2, 30.0),
    Sketcher.Constraint("DistanceY", 0, 1, 0, 2, 35.0),
])
sketch23.setExpression("Constraints[15]", "Params.sketch23_width")
sketch23.setExpression("Constraints[16]", "Params.sketch23_height")
pocket14 = body.newObject("PartDesign::Pocket", "Pocket013")
pocket14.Profile = sketch23
pocket14.setExpression("Length", "Params.pocket14_length")
pocket14.Reversed = True

sketch24 = body.newObject("Sketcher::SketchObject", "Sketch023")
sketch24.AttachmentSupport = (doc.getObject("YZ_Plane"), [""])
sketch24.MapMode = "FlatFace"
sketch24.AttachmentOffset = App.Placement(Vector(0, 0, -21), App.Rotation())
sketch24.addGeometry(Part.Circle(Vector(37.3, -8, 0), Vector(0, 0, 1), 2.5), False)
sketch24.addConstraint([
    Sketcher.Constraint("Diameter", 0, 5.0),
    Sketcher.Constraint("DistanceY", 0, 3, -1, 1, 8.0),
    Sketcher.Constraint("DistanceX", -1, 1, 0, 3, 37.3142),
])
sketch24.setExpression("Constraints[0]", "Params.sketch24_diameter")
pad10 = body.newObject("PartDesign::Pad", "Pad009")
pad10.Profile = sketch24
pad10.setExpression("Length", "Params.pad10_length")
pad10.Reversed = True

sketch25 = body.newObject("Sketcher::SketchObject", "Sketch024")
sketch25.AttachmentSupport = (doc.getObject("YZ_Plane"), [""])
sketch25.MapMode = "FlatFace"
sketch25.AttachmentOffset = App.Placement(Vector(0, 0, -15), App.Rotation())
add_polygon(sketch25, [(53, 0), (53, -15), (25, -15), (25, 0)])
sketch25.addGeometry(Part.Circle(Vector(37.3, -8, 0), Vector(0, 0, 1), 2.5), False)
sketch25.addConstraint([
    Sketcher.Constraint("Vertical", 0),
    Sketcher.Constraint("Horizontal", 1),
    Sketcher.Constraint("Vertical", 2),
    Sketcher.Constraint("Horizontal", 3),
    Sketcher.Constraint("PointOnObject", 2, 2, -1),
    Sketcher.Constraint("Diameter", 4, 5.0),
    Sketcher.Constraint("DistanceX", 1, 2, 1, 1, 28.0),
    Sketcher.Constraint("DistanceY", 0, 2, 0, 1, 15.0),
    Sketcher.Constraint("DistanceY", 4, 3, -1, 1, 8.0),
    Sketcher.Constraint("DistanceX", -1, 1, 0, 2, 53.0),
    Sketcher.Constraint("DistanceX", -1, 1, 4, 3, 37.3142),
])
sketch25.setExpression("Constraints[9]", "Params.sketch25_diameter")
sketch25.setExpression("Constraints[10]", "Params.sketch25_width")
sketch25.setExpression("Constraints[11]", "Params.sketch25_height")
pad11 = body.newObject("PartDesign::Pad", "Pad010")
pad11.Profile = sketch25
pad11.setExpression("Length", "Params.pad11_length")
pad11.Reversed = True

sketch26 = body.newObject("Sketcher::SketchObject", "Sketch025")
sketch26.AttachmentSupport = (doc.getObject("YZ_Plane"), [""])
sketch26.MapMode = "FlatFace"
sketch26.AttachmentOffset = App.Placement(Vector(0, 0, -27), App.Rotation())
sketch26.addGeometry([
    Part.Circle(Vector(37.3, -8, 0), Vector(0, 0, 1), 2.5),
    Part.Circle(Vector(37.3, -8, 0), Vector(0, 0, 1), 2.2),
], False)
sketch26.addConstraint([
    Sketcher.Constraint("Coincident", 1, 3, 0, 3),
    Sketcher.Constraint("Diameter", 1, 4.5),
    Sketcher.Constraint("Diameter", 0, 5.0),
    Sketcher.Constraint("DistanceY", 0, 3, -1, 1, 8.0),
    Sketcher.Constraint("DistanceX", -1, 1, 0, 3, 37.3142),
])
sketch26.setExpression("Constraints[1]", "Params.sketch26_diameter")
sketch26.setExpression("Constraints[2]", "Params.sketch26_diameter2")
pocket15 = body.newObject("PartDesign::Pocket", "Pocket014")
pocket15.Profile = sketch26
pocket15.setExpression("Length", "Params.pocket15_length")
pocket15.Reversed = True

sketch27 = body.newObject("Sketcher::SketchObject", "Sketch026")
sketch27.AttachmentSupport = (doc.getObject("YZ_Plane"), [""])
sketch27.MapMode = "FlatFace"
sketch27.AttachmentOffset = App.Placement(Vector(0, 0, -18.6), App.Rotation())
sketch27.addGeometry(Part.Circle(Vector(37.3, 10.3, 0), Vector(0, 0, 1), 2.6), False)
sketch27.addConstraint([
    Sketcher.Constraint("Diameter", 0, 5.2724),
    Sketcher.Constraint("DistanceY", -1, 1, 0, 3, 10.3),
    Sketcher.Constraint("DistanceX", -1, 1, 0, 3, 37.3142),
])
pad12 = body.newObject("PartDesign::Pad", "Pad011")
pad12.Profile = sketch27
pad12.setExpression("Length", "Params.pad12_length")

sketch28 = body.newObject("Sketcher::SketchObject", "Sketch027")
sketch28.AttachmentSupport = (doc.getObject("YZ_Plane"), [""])
sketch28.MapMode = "FlatFace"
sketch28.AttachmentOffset = App.Placement(Vector(0, 0, -18.6), App.Rotation())
sketch28.addGeometry(Part.Circle(Vector(37.3, 10.3, 0), Vector(0, 0, 1), 2.6), False)
sketch28.addConstraint([
    Sketcher.Constraint("Diameter", 0, 5.2724),
    Sketcher.Constraint("DistanceY", -1, 1, 0, 3, 10.3),
    Sketcher.Constraint("DistanceX", -1, 1, 0, 3, 37.3142),
])
pad13 = body.newObject("PartDesign::Pad", "Pad012")
pad13.Profile = sketch28
pad13.setExpression("Length", "Params.pad13_length")
pad13.Reversed = True

doc.recompute()
